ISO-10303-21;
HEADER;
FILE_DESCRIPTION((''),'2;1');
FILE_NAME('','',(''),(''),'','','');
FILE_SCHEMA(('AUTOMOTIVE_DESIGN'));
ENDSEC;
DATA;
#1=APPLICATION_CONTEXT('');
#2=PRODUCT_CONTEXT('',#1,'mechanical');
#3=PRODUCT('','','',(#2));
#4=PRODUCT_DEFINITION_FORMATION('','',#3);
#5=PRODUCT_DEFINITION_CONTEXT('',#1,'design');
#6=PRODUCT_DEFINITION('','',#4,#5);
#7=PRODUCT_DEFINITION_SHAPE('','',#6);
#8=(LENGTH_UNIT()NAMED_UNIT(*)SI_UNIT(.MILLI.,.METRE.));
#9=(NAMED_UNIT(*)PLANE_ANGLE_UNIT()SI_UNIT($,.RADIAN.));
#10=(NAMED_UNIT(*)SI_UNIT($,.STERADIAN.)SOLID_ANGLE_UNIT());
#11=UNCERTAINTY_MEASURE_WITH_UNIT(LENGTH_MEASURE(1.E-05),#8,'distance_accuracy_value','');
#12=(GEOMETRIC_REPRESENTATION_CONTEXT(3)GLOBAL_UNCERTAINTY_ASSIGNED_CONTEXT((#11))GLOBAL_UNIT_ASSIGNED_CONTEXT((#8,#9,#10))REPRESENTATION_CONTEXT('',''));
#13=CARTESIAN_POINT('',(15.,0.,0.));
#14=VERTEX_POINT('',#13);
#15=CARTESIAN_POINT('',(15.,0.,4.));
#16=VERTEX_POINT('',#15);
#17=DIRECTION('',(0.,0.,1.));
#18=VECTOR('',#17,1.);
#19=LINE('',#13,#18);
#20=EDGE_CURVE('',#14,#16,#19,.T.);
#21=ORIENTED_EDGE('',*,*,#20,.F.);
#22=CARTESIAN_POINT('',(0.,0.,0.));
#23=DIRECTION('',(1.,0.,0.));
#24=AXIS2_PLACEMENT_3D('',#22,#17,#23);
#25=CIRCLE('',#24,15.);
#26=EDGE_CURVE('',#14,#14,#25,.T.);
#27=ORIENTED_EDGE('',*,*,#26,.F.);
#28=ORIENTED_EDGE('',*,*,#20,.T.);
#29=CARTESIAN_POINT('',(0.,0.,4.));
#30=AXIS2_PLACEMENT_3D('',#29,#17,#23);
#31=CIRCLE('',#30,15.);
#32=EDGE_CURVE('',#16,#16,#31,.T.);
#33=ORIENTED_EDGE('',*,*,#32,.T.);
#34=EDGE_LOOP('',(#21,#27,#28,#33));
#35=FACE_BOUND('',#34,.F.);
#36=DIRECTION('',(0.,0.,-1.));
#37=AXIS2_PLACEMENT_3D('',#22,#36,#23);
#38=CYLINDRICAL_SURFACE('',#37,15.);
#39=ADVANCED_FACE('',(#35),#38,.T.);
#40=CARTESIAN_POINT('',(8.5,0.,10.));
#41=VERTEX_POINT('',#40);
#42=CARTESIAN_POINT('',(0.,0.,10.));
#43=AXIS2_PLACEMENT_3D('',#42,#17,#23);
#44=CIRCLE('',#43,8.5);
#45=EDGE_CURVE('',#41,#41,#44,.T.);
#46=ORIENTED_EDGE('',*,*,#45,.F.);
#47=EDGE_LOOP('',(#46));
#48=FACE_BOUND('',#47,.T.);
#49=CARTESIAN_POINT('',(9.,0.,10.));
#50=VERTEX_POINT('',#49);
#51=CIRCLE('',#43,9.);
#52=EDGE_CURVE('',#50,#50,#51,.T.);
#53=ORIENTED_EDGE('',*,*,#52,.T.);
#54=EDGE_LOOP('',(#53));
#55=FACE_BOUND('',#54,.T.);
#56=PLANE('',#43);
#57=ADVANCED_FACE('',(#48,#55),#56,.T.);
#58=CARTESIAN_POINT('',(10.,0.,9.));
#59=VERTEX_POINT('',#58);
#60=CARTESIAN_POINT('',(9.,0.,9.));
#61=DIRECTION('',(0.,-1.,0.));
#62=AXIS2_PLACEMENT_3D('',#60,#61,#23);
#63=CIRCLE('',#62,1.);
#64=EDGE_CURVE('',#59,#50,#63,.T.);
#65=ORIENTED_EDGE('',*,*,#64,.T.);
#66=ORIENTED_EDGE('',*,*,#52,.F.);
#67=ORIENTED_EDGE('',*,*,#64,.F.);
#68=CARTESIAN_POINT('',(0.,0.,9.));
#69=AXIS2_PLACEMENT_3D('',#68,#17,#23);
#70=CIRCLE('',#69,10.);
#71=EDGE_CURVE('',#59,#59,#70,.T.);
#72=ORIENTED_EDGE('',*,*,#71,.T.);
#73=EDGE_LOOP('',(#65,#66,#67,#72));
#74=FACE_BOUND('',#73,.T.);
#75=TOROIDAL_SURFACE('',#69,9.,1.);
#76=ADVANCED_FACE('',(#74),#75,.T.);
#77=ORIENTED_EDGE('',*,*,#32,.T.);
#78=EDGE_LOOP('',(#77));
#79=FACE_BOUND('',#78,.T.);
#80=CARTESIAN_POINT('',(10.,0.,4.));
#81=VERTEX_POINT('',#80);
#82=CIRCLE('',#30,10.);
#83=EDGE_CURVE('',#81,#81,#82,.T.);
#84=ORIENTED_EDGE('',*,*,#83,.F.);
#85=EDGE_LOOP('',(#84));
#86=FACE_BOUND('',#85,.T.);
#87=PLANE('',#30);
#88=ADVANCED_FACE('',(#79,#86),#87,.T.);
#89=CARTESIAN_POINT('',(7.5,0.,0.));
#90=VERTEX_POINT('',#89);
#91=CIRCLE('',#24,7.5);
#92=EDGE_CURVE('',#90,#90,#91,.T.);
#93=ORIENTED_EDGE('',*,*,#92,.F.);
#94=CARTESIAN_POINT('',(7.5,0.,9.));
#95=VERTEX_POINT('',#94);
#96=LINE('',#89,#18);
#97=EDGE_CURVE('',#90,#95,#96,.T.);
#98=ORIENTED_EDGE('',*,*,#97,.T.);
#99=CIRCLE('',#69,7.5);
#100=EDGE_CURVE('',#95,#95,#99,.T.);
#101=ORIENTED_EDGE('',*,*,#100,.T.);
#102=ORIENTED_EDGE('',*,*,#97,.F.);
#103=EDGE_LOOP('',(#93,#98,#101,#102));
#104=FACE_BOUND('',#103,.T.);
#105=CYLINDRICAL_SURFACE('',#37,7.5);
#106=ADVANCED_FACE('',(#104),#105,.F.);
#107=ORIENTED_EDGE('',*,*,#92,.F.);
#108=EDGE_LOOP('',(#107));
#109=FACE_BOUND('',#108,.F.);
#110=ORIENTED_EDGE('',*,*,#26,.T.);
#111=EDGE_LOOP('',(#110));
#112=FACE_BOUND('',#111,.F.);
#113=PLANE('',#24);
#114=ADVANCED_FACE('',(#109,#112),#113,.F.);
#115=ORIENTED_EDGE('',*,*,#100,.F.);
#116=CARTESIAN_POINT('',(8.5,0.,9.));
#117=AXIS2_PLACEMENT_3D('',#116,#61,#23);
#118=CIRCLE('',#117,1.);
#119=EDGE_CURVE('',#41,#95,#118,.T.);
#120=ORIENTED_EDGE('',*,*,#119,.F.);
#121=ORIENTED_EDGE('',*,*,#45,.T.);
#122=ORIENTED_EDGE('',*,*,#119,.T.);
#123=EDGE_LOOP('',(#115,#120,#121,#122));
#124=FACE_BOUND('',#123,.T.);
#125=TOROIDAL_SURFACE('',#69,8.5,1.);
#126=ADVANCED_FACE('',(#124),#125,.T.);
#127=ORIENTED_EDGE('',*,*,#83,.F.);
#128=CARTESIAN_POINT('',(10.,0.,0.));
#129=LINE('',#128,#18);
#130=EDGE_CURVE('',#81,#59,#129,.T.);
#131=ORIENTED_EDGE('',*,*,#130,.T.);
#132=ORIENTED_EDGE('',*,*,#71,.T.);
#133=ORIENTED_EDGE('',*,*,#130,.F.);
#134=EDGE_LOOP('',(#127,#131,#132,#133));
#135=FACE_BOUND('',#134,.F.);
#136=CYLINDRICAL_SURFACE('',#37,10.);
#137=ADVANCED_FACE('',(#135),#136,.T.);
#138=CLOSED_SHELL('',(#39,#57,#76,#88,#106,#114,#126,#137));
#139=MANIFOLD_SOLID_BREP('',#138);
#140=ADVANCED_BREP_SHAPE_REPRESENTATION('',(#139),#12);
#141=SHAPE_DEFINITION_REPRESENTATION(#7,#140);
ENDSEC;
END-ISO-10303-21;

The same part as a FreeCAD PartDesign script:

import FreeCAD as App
import Part
import Sketcher
from FreeCAD import Vector


def edges_at(feature, points):
    """Names of the edges that pass closest to the given points."""
    edges = feature.Shape.Edges
    near = lambda p: min(range(len(edges)), key=lambda i: edges[i].distToShape(Part.Vertex(*p))[0])
    return sorted({f"Edge{near(p) + 1}" for p in points})

doc = App.newDocument("Part")
body = doc.addObject("PartDesign::Body", "Body")

sketch1 = body.newObject("Sketcher::SketchObject", "Sketch")
sketch1.AttachmentSupport = (doc.getObject("XY_Plane"), [""])
sketch1.MapMode = "FlatFace"
sketch1.addGeometry([
    Part.Circle(Vector(0, 0, 0), Vector(0, 0, 1), 15),
    Part.Circle(Vector(0, 0, 0), Vector(0, 0, 1), 10),
], False)
sketch1.addConstraint([
    Sketcher.Constraint("Coincident", 0, 3, -1, 1),
    Sketcher.Constraint("Coincident", 1, 3, -1, 1),
    Sketcher.Constraint("Diameter", 0, 30.0),
    Sketcher.Constraint("Diameter", 1, 20.0),
])
pad1 = body.newObject("PartDesign::Pad", "Pad")
pad1.Profile = sketch1
pad1.Length = 4

sketch2 = body.newObject("Sketcher::SketchObject", "Sketch001")
sketch2.AttachmentSupport = (doc.getObject("XY_Plane"), [""])
sketch2.MapMode = "FlatFace"
sketch2.addGeometry([
    Part.Circle(Vector(0, 0, 0), Vector(0, 0, 1), 10),
    Part.Circle(Vector(0, 0, 0), Vector(0, 0, 1), 8),
], False)
sketch2.addConstraint([
    Sketcher.Constraint("Coincident", 0, 3, -1, 1),
    Sketcher.Constraint("Coincident", 1, 3, -1, 1),
    Sketcher.Constraint("Diameter", 0, 20.0),
    Sketcher.Constraint("Diameter", 1, 15.0),
])
pad2 = body.newObject("PartDesign::Pad", "Pad001")
pad2.Profile = sketch2
pad2.Length = 10
doc.recompute()

fillet = body.newObject("PartDesign::Fillet", "Fillet")
fillet.Base = (pad2, edges_at(pad2, [(-7.5, 0, 10), (-10, 0, 10)]))
fillet.Radius = 1

doc.recompute()
